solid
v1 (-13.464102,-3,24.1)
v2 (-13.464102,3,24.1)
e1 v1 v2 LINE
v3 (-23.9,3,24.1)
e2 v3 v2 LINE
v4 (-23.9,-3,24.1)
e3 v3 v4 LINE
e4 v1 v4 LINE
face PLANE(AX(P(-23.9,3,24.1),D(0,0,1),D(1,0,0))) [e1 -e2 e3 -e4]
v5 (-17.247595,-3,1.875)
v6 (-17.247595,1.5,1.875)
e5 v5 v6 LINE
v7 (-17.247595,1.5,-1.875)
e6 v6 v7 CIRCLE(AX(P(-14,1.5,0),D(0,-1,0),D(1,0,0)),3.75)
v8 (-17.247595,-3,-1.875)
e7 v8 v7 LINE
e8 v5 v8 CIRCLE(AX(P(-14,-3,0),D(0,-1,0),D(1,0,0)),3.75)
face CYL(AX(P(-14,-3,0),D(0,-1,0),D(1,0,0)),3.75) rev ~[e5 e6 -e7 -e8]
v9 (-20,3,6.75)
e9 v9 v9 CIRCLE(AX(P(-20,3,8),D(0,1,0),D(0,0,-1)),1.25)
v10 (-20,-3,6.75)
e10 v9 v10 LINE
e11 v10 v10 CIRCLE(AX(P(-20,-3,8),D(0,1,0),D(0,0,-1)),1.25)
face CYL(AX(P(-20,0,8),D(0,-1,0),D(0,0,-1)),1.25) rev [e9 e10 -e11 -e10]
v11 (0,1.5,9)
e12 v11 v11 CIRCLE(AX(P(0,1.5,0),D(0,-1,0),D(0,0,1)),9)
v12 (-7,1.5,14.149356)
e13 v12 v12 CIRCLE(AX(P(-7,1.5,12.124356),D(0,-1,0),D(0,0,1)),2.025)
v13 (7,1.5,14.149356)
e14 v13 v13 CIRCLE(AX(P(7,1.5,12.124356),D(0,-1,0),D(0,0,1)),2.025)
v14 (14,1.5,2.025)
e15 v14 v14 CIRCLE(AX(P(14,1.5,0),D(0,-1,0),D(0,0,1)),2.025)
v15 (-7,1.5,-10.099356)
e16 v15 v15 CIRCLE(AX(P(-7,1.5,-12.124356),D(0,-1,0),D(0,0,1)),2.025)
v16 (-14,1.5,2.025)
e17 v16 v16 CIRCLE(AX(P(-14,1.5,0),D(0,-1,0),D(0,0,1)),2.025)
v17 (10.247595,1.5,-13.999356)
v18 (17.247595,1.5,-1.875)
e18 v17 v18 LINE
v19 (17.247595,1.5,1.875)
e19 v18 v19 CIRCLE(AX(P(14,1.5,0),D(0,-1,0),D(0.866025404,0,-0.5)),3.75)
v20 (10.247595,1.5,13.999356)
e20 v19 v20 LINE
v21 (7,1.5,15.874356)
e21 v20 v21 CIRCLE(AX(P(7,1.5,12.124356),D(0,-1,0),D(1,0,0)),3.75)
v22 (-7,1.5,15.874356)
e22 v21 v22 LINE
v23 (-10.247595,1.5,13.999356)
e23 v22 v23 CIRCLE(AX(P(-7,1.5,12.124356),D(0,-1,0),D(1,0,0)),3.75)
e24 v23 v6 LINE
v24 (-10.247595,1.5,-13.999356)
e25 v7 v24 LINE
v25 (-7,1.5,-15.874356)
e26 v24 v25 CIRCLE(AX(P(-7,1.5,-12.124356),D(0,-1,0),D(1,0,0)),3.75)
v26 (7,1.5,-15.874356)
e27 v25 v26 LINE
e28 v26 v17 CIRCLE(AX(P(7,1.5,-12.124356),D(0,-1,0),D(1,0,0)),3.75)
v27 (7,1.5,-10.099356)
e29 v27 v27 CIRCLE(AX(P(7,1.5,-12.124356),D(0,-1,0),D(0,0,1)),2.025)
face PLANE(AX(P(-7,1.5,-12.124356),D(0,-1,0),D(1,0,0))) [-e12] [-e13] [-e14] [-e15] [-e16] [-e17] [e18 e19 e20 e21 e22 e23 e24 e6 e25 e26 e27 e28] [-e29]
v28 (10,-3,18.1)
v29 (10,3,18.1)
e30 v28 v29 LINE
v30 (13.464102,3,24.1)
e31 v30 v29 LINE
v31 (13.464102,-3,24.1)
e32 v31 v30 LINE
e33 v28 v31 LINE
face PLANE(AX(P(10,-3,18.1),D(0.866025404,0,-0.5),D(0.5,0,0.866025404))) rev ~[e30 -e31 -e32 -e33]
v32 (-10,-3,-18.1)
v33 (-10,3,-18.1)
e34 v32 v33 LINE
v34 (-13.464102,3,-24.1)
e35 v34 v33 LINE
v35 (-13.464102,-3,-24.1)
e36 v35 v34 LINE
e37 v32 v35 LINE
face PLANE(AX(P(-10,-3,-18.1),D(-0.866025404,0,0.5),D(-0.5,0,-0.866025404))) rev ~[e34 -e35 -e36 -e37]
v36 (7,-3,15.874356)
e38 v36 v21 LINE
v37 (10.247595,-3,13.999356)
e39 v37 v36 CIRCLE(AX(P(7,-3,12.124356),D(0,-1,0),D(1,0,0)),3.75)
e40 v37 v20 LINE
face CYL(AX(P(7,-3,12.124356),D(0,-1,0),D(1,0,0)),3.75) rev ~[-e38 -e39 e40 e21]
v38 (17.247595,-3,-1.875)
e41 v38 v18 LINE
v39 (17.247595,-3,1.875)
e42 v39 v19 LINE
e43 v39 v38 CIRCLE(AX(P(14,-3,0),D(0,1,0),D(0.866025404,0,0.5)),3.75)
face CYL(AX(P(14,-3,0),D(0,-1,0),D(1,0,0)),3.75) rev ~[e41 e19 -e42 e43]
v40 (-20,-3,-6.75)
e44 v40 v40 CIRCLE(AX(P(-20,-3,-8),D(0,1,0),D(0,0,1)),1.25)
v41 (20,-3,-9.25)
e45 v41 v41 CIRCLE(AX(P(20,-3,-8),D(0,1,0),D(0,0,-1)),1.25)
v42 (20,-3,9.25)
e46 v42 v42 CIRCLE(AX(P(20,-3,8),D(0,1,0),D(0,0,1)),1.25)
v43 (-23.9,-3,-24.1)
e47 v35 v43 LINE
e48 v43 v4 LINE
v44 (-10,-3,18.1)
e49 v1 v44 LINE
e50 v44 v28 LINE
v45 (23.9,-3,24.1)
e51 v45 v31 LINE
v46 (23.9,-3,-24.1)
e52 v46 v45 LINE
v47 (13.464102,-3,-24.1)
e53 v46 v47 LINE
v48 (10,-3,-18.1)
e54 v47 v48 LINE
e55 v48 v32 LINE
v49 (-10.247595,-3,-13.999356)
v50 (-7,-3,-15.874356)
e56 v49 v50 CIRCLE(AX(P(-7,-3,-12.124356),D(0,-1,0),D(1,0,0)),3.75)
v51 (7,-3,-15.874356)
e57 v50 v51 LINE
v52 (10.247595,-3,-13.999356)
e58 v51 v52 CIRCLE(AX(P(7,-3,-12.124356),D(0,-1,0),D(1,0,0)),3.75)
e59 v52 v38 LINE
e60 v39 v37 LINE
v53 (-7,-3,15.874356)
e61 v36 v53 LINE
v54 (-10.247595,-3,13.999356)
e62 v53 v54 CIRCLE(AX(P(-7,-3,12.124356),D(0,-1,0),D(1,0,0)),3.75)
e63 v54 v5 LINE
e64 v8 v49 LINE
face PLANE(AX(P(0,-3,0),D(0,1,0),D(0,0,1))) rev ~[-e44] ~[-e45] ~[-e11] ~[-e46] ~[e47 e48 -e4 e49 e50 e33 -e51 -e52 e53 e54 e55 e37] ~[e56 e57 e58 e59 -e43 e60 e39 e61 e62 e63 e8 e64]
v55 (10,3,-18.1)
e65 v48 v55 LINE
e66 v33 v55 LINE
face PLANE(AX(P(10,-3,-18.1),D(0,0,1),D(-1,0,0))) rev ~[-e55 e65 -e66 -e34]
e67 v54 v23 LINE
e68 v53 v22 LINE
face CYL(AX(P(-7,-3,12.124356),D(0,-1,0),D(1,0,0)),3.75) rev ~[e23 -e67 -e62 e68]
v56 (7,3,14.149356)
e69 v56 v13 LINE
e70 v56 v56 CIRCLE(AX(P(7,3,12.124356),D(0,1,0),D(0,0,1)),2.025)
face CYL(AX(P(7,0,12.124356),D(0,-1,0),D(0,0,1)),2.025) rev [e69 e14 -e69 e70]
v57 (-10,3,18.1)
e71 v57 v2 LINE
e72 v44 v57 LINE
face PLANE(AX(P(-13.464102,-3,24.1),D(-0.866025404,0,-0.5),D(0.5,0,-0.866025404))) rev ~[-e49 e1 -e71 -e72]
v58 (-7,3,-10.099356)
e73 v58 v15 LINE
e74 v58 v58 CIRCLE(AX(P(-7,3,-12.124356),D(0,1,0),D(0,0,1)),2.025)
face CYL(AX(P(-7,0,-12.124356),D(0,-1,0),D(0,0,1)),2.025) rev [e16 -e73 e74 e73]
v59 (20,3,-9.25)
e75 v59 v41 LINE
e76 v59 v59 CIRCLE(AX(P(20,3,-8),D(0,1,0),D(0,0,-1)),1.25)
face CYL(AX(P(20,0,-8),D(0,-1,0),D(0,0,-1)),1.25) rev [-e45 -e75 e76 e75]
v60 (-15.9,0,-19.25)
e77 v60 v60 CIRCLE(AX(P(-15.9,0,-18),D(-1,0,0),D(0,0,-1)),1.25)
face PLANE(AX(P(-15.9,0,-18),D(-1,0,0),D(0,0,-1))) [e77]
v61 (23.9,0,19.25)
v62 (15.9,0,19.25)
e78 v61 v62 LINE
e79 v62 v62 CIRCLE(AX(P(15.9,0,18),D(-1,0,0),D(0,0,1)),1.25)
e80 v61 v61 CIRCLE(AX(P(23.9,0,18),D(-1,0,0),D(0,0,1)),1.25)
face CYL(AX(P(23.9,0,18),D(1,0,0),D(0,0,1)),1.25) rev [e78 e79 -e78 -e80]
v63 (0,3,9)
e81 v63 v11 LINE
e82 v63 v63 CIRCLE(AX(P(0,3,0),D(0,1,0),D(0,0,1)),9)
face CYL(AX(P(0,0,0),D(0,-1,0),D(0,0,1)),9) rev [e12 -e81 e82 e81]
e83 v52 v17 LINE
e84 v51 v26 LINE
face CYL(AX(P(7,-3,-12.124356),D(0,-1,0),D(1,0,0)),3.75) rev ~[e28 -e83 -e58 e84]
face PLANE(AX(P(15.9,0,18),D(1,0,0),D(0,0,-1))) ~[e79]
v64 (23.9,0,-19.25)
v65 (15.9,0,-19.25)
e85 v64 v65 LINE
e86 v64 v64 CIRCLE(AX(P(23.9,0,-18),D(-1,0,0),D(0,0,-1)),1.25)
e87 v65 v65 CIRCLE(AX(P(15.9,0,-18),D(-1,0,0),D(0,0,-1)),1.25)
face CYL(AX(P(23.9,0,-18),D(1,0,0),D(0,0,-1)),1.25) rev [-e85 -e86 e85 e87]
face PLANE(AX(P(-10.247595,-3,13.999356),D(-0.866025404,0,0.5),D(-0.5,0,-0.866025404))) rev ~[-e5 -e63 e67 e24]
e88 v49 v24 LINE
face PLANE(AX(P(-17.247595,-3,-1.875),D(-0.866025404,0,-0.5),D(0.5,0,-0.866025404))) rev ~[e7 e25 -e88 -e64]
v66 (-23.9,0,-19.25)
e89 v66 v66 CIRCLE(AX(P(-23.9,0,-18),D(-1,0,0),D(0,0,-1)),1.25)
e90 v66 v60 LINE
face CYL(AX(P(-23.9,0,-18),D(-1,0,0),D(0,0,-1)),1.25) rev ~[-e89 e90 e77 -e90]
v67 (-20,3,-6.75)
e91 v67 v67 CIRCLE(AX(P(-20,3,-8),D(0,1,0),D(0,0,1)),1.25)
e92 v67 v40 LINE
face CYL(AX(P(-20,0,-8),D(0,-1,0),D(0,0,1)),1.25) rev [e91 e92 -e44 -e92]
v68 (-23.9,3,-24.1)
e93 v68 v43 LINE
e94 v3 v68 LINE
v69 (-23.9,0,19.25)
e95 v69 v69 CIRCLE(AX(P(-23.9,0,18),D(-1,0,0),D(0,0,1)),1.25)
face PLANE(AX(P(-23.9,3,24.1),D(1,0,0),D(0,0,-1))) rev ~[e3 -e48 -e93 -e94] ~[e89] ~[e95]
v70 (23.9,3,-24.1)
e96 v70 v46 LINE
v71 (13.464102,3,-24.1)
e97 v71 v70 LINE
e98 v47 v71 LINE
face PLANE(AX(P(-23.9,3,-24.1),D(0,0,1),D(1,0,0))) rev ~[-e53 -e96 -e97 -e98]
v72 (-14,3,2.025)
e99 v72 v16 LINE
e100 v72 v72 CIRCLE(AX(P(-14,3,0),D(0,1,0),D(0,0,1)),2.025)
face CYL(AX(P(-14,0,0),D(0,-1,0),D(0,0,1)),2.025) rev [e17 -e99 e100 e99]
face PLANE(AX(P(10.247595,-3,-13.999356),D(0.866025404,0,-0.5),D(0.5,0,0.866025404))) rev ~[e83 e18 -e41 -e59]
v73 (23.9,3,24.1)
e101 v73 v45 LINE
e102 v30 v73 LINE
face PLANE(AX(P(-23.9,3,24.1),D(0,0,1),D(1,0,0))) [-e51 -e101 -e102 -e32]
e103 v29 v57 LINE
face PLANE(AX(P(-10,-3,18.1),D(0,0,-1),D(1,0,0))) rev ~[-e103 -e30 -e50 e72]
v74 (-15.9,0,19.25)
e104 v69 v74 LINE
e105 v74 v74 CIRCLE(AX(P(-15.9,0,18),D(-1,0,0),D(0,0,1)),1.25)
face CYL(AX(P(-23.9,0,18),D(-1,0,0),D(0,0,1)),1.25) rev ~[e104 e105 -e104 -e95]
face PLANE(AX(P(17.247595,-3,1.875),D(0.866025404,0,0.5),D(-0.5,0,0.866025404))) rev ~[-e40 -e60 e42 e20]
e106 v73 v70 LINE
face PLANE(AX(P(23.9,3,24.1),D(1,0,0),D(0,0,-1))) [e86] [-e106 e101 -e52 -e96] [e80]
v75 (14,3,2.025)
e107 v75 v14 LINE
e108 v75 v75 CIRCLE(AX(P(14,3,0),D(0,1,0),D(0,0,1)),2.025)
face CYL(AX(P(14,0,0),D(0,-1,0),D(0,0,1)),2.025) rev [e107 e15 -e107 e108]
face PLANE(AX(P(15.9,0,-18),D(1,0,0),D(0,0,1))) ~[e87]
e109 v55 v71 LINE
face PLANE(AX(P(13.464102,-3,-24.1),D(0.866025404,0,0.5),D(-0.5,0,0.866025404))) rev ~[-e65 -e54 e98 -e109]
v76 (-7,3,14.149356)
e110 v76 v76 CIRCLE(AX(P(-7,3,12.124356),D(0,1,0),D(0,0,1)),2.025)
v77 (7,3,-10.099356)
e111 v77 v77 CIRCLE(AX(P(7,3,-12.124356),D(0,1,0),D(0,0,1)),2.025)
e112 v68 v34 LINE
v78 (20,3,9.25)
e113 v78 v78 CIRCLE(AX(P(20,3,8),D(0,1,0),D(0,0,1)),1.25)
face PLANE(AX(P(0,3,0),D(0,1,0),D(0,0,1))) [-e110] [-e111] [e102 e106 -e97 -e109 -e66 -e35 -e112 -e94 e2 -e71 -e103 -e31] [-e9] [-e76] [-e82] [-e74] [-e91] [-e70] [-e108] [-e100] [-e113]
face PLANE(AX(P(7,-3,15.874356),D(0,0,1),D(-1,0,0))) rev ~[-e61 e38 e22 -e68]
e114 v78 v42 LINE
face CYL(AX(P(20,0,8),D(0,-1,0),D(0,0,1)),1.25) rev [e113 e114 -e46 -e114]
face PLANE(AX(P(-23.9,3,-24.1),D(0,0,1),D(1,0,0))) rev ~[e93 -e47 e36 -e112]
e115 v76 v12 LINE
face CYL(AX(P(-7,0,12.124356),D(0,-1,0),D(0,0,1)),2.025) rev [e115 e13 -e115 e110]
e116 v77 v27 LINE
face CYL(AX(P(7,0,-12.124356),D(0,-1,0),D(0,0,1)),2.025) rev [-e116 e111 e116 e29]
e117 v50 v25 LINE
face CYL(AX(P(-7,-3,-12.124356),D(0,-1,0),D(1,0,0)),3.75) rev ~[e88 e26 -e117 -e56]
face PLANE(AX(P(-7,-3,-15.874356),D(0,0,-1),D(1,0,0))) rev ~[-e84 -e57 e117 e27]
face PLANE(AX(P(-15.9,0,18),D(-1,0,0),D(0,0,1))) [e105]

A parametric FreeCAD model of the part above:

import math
import FreeCAD as App
import Part
import Sketcher
Q = App.Units.Quantity

doc = App.newDocument("Part")
body = doc.addObject("PartDesign::Body", "Body")

# Sketch on XZ plane
sketch1 = body.newObject("Sketcher::SketchObject", "Sketch")
sketch1.AttachmentSupport = (doc.getObject("XZ_Plane"), [""])
sketch1.MapMode = "FlatFace"
sketch1.addGeometry([
    Part.Circle(App.Vector(0, 0, 0), App.Vector(0, 0, 1), 35),  # 0
    Part.Circle(App.Vector(-20, -8, 0), App.Vector(0, 0, 1), 1.2),  # 1
    Part.Circle(App.Vector(-7, -12.1, 0), App.Vector(0, 0, 1), 2),  # 2
    Part.Circle(App.Vector(-14, 0, 0), App.Vector(0, 0, 1), 2),  # 3
    Part.Circle(App.Vector(-20, 8, 0), App.Vector(0, 0, 1), 1.2),  # 4
    Part.Circle(App.Vector(-7, 12.1, 0), App.Vector(0, 0, 1), 2),  # 5
    Part.Circle(App.Vector(7, -12.1, 0), App.Vector(0, 0, 1), 2),  # 6
    Part.Circle(App.Vector(20, -8, 0), App.Vector(0, 0, 1), 1.2),  # 7
    Part.Circle(App.Vector(14, 0, 0), App.Vector(0, 0, 1), 2),  # 8
    Part.Circle(App.Vector(0, 0, 0), App.Vector(0, 0, 1), 9),  # 9
    Part.Circle(App.Vector(7, 12.1, 0), App.Vector(0, 0, 1), 2),  # 10
    Part.Circle(App.Vector(20, 8, 0), App.Vector(0, 0, 1), 1.2),  # 11
], False)
sketch1.addConstraint([
    Sketcher.Constraint("Coincident", 0, 3, -1, 1),
    Sketcher.Constraint("Coincident", 9, 3, -1, 1),
    Sketcher.Constraint("Equal", 2, 3),
    Sketcher.Constraint("Equal", 1, 4),
    Sketcher.Constraint("Equal", 3, 5),
    Sketcher.Constraint("Equal", 5, 6),
    Sketcher.Constraint("Equal", 4, 7),
    Sketcher.Constraint("Equal", 6, 8),
    Sketcher.Constraint("Equal", 8, 10),
    Sketcher.Constraint("Equal", 7, 11),
    Sketcher.Constraint("Symmetric", 5, 3, 6, 3, -1, 1),
    Sketcher.Constraint("Symmetric", 4, 3, 7, 3, -1, 1),
    Sketcher.Constraint("Symmetric", 3, 3, 8, 3, -1, 1),
    Sketcher.Constraint("Symmetric", 2, 3, 10, 3, -1, 1),
    Sketcher.Constraint("Symmetric", 1, 3, 11, 3, -1, 1),
    Sketcher.Constraint("Symmetric", 2, 3, 6, 3, -2),
    Sketcher.Constraint("Symmetric", 1, 3, 7, 3, -2),
    Sketcher.Constraint("PointOnObject", 3, 3, -1),
    Sketcher.Constraint("Diameter", 0, Q("70 mm")),
    Sketcher.Constraint("Diameter", 9, Q("18 mm")),
    Sketcher.Constraint("Diameter", 1, Q("2.5 mm")),
    Sketcher.Constraint("Diameter", 2, Q("4.05 mm")),
    Sketcher.Constraint("DistanceX", 1, 3, -1, 1, Q("20 mm")),
    Sketcher.Constraint("DistanceY", 1, 3, -1, 1, Q("8 mm")),
    Sketcher.Constraint("DistanceX", 2, 3, -1, 1, Q("7 mm")),
    Sketcher.Constraint("DistanceX", 3, 3, -1, 1, Q("14 mm")),
    Sketcher.Constraint("DistanceY", 2, 3, 5, 3, Q("24.248711 mm")),
])
pad1 = body.newObject("PartDesign::Pad", "Pad")
pad1.Profile = sketch1
pad1.Length = 6
pad1.Midplane = True

# Sketch on XZ plane
sketch2 = body.newObject("Sketcher::SketchObject", "Sketch001")
sketch2.AttachmentSupport = (doc.getObject("XZ_Plane"), [""])
sketch2.MapMode = "FlatFace"
sketch2.AttachmentOffset = App.Placement(App.Vector(0, 0, -3), App.Rotation())
sketch2.addGeometry([
    Part.Circle(App.Vector(0, 0, 0), App.Vector(0, 0, 1), 35),  # 0
    Part.LineSegment(App.Vector(24, 24, 0), App.Vector(-24, 24, 0)),  # 1
    Part.LineSegment(App.Vector(-24, 24, 0), App.Vector(-24, -24, 0)),  # 2
    Part.LineSegment(App.Vector(-24, -24, 0), App.Vector(24, -24, 0)),  # 3
    Part.LineSegment(App.Vector(24, -24, 0), App.Vector(24, 24, 0)),  # 4
], False)
sketch2.addConstraint([
    Sketcher.Constraint("Coincident", 1, 2, 2, 1),
    Sketcher.Constraint("Coincident", 2, 2, 3, 1),
    Sketcher.Constraint("Coincident", 3, 2, 4, 1),
    Sketcher.Constraint("Coincident", 4, 2, 1, 1),
    Sketcher.Constraint("Horizontal", 1),
    Sketcher.Constraint("Vertical", 2),
    Sketcher.Constraint("Horizontal", 3),
    Sketcher.Constraint("Vertical", 4),
    Sketcher.Constraint("Coincident", 0, 3, -1, 1),
    Sketcher.Constraint("Symmetric", 1, 2, 3, 2, -1, 1),
    Sketcher.Constraint("Diameter", 0, Q("70 mm")),
    Sketcher.Constraint("DistanceX", 1, 2, 1, 1, Q("47.8 mm")),
    Sketcher.Constraint("DistanceY", 2, 2, 2, 1, Q("48.2 mm")),
])
pocket1 = body.newObject("PartDesign::Pocket", "Pocket")
pocket1.Profile = sketch2
pocket1.Length = 6
pocket1.Reversed = True

# Sketch on YZ plane
sketch3 = body.newObject("Sketcher::SketchObject", "Sketch002")
sketch3.AttachmentSupport = (doc.getObject("YZ_Plane"), [""])
sketch3.MapMode = "FlatFace"
sketch3.AttachmentOffset = App.Placement(App.Vector(0, 0, -23.9), App.Rotation())
sketch3.addGeometry([
    Part.Circle(App.Vector(0, 18, 0), App.Vector(0, 0, 1), 1.2),
    Part.Circle(App.Vector(0, -18, 0), App.Vector(0, 0, 1), 1.2),
], False)
sketch3.addConstraint([
    Sketcher.Constraint("Equal", 0, 1),
    Sketcher.Constraint("Symmetric", 0, 3, 1, 3, -1, 1),
    Sketcher.Constraint("PointOnObject", 0, 3, -2),
    Sketcher.Constraint("Diameter", 0, Q("2.5 mm")),
    Sketcher.Constraint("DistanceY", -1, 1, 0, 3, Q("18 mm")),
])
pocket2 = body.newObject("PartDesign::Pocket", "Pocket001")
pocket2.Profile = sketch3
pocket2.Length = 8
pocket2.Reversed = True

# Sketch on XZ plane
sketch4 = body.newObject("Sketcher::SketchObject", "Sketch003")
sketch4.AttachmentSupport = (doc.getObject("XZ_Plane"), [""])
sketch4.MapMode = "FlatFace"
sketch4.AttachmentOffset = App.Placement(App.Vector(0, 0, 3), App.Rotation())
sketch4.addGeometry([
    Part.LineSegment(App.Vector(7, 15.9, 0), App.Vector(-7, 15.9, 0)),  # 0
    Part.ArcOfCircle(Part.Circle(App.Vector(-7, 12.1, 0), App.Vector(0, 0, 1), 3.8), math.radians(90), math.radians(150)),  # 1
    Part.LineSegment(App.Vector(-10.2, 14, 0), App.Vector(-17.2, 1.9, 0)),  # 2
    Part.ArcOfCircle(Part.Circle(App.Vector(-14, 0, 0), App.Vector(0, 0, 1), 3.8), math.radians(150), math.radians(210)),  # 3
    Part.LineSegment(App.Vector(-17.2, -1.9, 0), App.Vector(-10.2, -14, 0)),  # 4
    Part.ArcOfCircle(Part.Circle(App.Vector(-7, -12.1, 0), App.Vector(0, 0, 1), 3.8), math.radians(-150), math.radians(-90)),  # 5
    Part.LineSegment(App.Vector(-7, -15.9, 0), App.Vector(7, -15.9, 0)),  # 6
    Part.ArcOfCircle(Part.Circle(App.Vector(7, -12.1, 0), App.Vector(0, 0, 1), 3.8), math.radians(-90), math.radians(-30)),  # 7
    Part.LineSegment(App.Vector(10.2, -14, 0), App.Vector(17.2, -1.9, 0)),  # 8
    Part.ArcOfCircle(Part.Circle(App.Vector(14, 0, 0), App.Vector(0, 0, 1), 3.8), math.radians(-30), math.radians(30)),  # 9
    Part.LineSegment(App.Vector(17.2, 1.9, 0), App.Vector(10.2, 14, 0)),  # 10
    Part.ArcOfCircle(Part.Circle(App.Vector(7, 12.1, 0), App.Vector(0, 0, 1), 3.8), math.radians(30), math.radians(90)),  # 11
    Part.Circle(App.Vector(0, 0, 0), App.Vector(0, 0, 1), 9),  # 12
    Part.Circle(App.Vector(7, 12.1, 0), App.Vector(0, 0, 1), 2),  # 13
    Part.Circle(App.Vector(-7, 12.1, 0), App.Vector(0, 0, 1), 2),  # 14
    Part.Circle(App.Vector(14, 0, 0), App.Vector(0, 0, 1), 2),  # 15
    Part.Circle(App.Vector(-14, 0, 0), App.Vector(0, 0, 1), 2),  # 16
    Part.Circle(App.Vector(7, -12.1, 0), App.Vector(0, 0, 1), 2),  # 17
    Part.Circle(App.Vector(-7, -12.1, 0), App.Vector(0, 0, 1), 2),  # 18
], False)
sketch4.addConstraint([
    Sketcher.Constraint("Tangent", 0, 2, 1, 1),
    Sketcher.Constraint("Tangent", 1, 2, 2, 1),
    Sketcher.Constraint("Tangent", 2, 2, 3, 1),
    Sketcher.Constraint("Tangent", 3, 2, 4, 1),
    Sketcher.Constraint("Tangent", 4, 2, 5, 1),
    Sketcher.Constraint("Tangent", 5, 2, 6, 1),
    Sketcher.Constraint("Tangent", 6, 2, 7, 1),
    Sketcher.Constraint("Tangent", 7, 2, 8, 1),
    Sketcher.Constraint("Tangent", 8, 2, 9, 1),
    Sketcher.Constraint("Tangent", 9, 2, 10, 1),
    Sketcher.Constraint("Tangent", 10, 2, 11, 1),
    Sketcher.Constraint("Tangent", 11, 2, 0, 1),
    Sketcher.Constraint("Horizontal", 0),
    Sketcher.Constraint("Horizontal", 6),
    Sketcher.Constraint("Coincident", 12, 3, -1, 1),
    Sketcher.Constraint("Coincident", 13, 3, 11, 3),
    Sketcher.Constraint("Coincident", 14, 3, 1, 3),
    Sketcher.Constraint("Coincident", 15, 3, 9, 3),
    Sketcher.Constraint("Coincident", 16, 3, 3, 3),
    Sketcher.Constraint("Coincident", 17, 3, 7, 3),
    Sketcher.Constraint("Coincident", 18, 3, 5, 3),
    Sketcher.Constraint("Equal", 1, 3),
    Sketcher.Constraint("Equal", 3, 5),
    Sketcher.Constraint("Equal", 5, 7),
    Sketcher.Constraint("Equal", 7, 9),
    Sketcher.Constraint("Equal", 9, 11),
    Sketcher.Constraint("Equal", 13, 14),
    Sketcher.Constraint("Equal", 14, 15),
    Sketcher.Constraint("Equal", 15, 16),
    Sketcher.Constraint("Equal", 16, 17),
    Sketcher.Constraint("Equal", 17, 18),
    Sketcher.Constraint("Symmetric", 1, 3, 7, 3, -1, 1),
    Sketcher.Constraint("Symmetric", 3, 3, 9, 3, -1, 1),
    Sketcher.Constraint("Symmetric", 4, 2, 7, 2, -2),
    Sketcher.Constraint("Parallel", 4, 10),
    Sketcher.Constraint("Diameter", 12, Q("18 mm")),
    Sketcher.Constraint("Diameter", 13, Q("4.05 mm")),
    Sketcher.Constraint("DistanceX", 0, 2, 0, 1, Q("14 mm")),
    Sketcher.Constraint("Angle", 2, Q("-120 deg")),
    Sketcher.Constraint("Radius", 1, Q("3.75 mm")),
    Sketcher.Constraint("Distance", 2, Q("14 mm")),
])
pocket3 = body.newObject("PartDesign::Pocket", "Pocket002")
pocket3.Profile = sketch4
pocket3.Length = 4.5
doc.recompute()

mirrored = body.newObject("PartDesign::Mirrored", "Mirrored")
mirrored.Originals = [pocket2]
mirrored.MirrorPlane = (doc.getObject("YZ_Plane"), [""])
body.Tip = mirrored

# Sketch on XZ plane
sketch5 = body.newObject("Sketcher::SketchObject", "Sketch004")
sketch5.AttachmentSupport = (doc.getObject("XZ_Plane"), [""])
sketch5.MapMode = "FlatFace"
sketch5.AttachmentOffset = App.Placement(App.Vector(0, 0, 3), App.Rotation())
sketch5.addGeometry([
    Part.LineSegment(App.Vector(-13, 24, 0), App.Vector(-10, 18, 0)),  # 0
    Part.LineSegment(App.Vector(-10, 18, 0), App.Vector(10, 18, 0)),  # 1
    Part.LineSegment(App.Vector(10, 18, 0), App.Vector(13, 24, 0)),  # 2
    Part.LineSegment(App.Vector(13, 24, 0), App.Vector(-13, 24, 0)),  # 3
    Part.LineSegment(App.Vector(10, -18, 0), App.Vector(-10, -18, 0)),  # 4
    Part.LineSegment(App.Vector(-10, -18, 0), App.Vector(-13, -24, 0)),  # 5
    Part.LineSegment(App.Vector(-13, -24, 0), App.Vector(13, -24, 0)),  # 6
    Part.LineSegment(App.Vector(13, -24, 0), App.Vector(10, -18, 0)),  # 7
], False)
sketch5.addConstraint([
    Sketcher.Constraint("Coincident", 0, 2, 1, 1),
    Sketcher.Constraint("Coincident", 1, 2, 2, 1),
    Sketcher.Constraint("Coincident", 2, 2, 3, 1),
    Sketcher.Constraint("Coincident", 3, 2, 0, 1),
    Sketcher.Constraint("Coincident", 4, 2, 5, 1),
    Sketcher.Constraint("Coincident", 5, 2, 6, 1),
    Sketcher.Constraint("Coincident", 6, 2, 7, 1),
    Sketcher.Constraint("Coincident", 7, 2, 4, 1),
    Sketcher.Constraint("Horizontal", 1),
    Sketcher.Constraint("Horizontal", 3),
    Sketcher.Constraint("Horizontal", 4),
    Sketcher.Constraint("Horizontal", 6),
    Sketcher.Constraint("Symmetric", 1, 2, 4, 2, -1, 1),
    Sketcher.Constraint("Symmetric", 2, 2, 5, 2, -1, 1),
    Sketcher.Constraint("Parallel", 0, 7),
    Sketcher.Constraint("Vertical", 0, 2, 4, 2),
    Sketcher.Constraint("Vertical", 3, 2, 5, 2),
    Sketcher.Constraint("Vertical", 2, 2, 6, 2),
    Sketcher.Constraint("DistanceX", 1, 1, 1, 2, Q("20 mm")),
    Sketcher.Constraint("Angle", 0, Q("-60 deg")),
    Sketcher.Constraint("DistanceY", 1, 2, 2, 2, Q("6 mm")),
    Sketcher.Constraint("DistanceY", -1, 1, 0, 2, Q("18.1 mm")),
])
pocket4 = body.newObject("PartDesign::Pocket", "Pocket003")
pocket4.Profile = sketch5
pocket4.Type = "ThroughAll"

doc.recompute()
